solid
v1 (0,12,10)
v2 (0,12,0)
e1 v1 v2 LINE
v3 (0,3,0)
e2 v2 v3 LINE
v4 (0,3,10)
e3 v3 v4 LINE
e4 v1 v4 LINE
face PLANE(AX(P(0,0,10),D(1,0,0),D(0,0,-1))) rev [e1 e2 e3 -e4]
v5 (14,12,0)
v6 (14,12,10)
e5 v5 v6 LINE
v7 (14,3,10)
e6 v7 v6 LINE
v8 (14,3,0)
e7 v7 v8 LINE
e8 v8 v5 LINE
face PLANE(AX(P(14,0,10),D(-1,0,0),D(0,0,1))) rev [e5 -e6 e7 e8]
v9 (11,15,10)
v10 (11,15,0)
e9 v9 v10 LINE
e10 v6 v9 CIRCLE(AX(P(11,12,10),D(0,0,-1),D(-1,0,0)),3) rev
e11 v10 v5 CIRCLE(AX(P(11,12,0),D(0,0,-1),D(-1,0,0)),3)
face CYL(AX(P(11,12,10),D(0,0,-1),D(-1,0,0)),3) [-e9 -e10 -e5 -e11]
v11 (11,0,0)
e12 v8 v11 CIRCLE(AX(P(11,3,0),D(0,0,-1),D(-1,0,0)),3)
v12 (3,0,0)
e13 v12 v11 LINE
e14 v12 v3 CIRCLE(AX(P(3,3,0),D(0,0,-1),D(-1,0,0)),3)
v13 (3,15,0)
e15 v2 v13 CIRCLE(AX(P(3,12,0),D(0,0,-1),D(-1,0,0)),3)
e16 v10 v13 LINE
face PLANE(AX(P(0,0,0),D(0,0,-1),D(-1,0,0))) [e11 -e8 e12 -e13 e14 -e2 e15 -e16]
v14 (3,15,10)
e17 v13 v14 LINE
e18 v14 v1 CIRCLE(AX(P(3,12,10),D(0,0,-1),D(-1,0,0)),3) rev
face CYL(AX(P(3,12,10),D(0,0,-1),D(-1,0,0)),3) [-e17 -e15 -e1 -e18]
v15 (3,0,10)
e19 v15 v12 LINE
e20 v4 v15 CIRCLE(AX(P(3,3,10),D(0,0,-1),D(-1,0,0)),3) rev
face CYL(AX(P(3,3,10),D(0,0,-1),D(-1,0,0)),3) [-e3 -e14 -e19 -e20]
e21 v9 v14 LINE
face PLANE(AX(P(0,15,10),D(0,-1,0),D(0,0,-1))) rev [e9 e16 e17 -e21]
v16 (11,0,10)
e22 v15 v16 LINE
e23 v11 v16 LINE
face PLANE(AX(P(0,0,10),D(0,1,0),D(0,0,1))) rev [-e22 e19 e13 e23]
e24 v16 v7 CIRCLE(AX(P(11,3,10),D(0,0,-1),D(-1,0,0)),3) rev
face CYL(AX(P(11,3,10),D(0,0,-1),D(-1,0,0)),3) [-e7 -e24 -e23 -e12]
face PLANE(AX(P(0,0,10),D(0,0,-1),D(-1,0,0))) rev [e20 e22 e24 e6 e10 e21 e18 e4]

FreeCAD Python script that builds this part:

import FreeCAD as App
import Part
import Sketcher
from FreeCAD import Vector
Q = App.Units.Quantity


def edges_at(feature, points):
    """Names of the edges that pass closest to the given points."""
    edges = feature.Shape.Edges
    near = lambda p: min(range(len(edges)), key=lambda i: edges[i].distToShape(Part.Vertex(*p))[0])
    return sorted({f"Edge{near(p) + 1}" for p in points})

doc = App.newDocument("Part")
body = doc.addObject("PartDesign::Body", "Body")

sketch1 = body.newObject("Sketcher::SketchObject", "Sketch")
sketch1.AttachmentSupport = (doc.getObject("XY_Plane"), [""])
sketch1.MapMode = "FlatFace"
sketch1.addGeometry(Part.LineSegment(Vector(0, 15, 0), Vector(0, 0, 0)), False)
sketch1.addGeometry(Part.LineSegment(Vector(0, 0, 0), Vector(14, 0, 0)), False)
sketch1.addGeometry(Part.LineSegment(Vector(14, 0, 0), Vector(14, 15, 0)), False)
sketch1.addGeometry(Part.LineSegment(Vector(14, 15, 0), Vector(0, 15, 0)), False)
sketch1.addConstraint(Sketcher.Constraint("Coincident", 0, 2, 1, 1))
sketch1.addConstraint(Sketcher.Constraint("Coincident", 1, 2, 2, 1))
sketch1.addConstraint(Sketcher.Constraint("Coincident", 2, 2, 3, 1))
sketch1.addConstraint(Sketcher.Constraint("Coincident", 3, 2, 0, 1))
sketch1.addConstraint(Sketcher.Constraint("Vertical", 0))
sketch1.addConstraint(Sketcher.Constraint("Horizontal", 1))
sketch1.addConstraint(Sketcher.Constraint("Vertical", 2))
sketch1.addConstraint(Sketcher.Constraint("Horizontal", 3))
sketch1.addConstraint(Sketcher.Constraint("Coincident", 0, 2, -1, 1))
sketch1.addConstraint(Sketcher.Constraint("DistanceX", 1, 1, 1, 2, Q("14 mm")))
sketch1.addConstraint(Sketcher.Constraint("DistanceY", 0, 2, 0, 1, Q("15 mm")))
pad1 = body.newObject("PartDesign::Pad", "Pad")
pad1.Profile = sketch1
pad1.Length = 10
doc.recompute()

fillet = body.newObject("PartDesign::Fillet", "Fillet")
fillet.Base = (pad1, edges_at(pad1, [
    (0, 15, 5),
    (14, 15, 5),
    (14, 0, 5),
    (0, 0, 5),
]))
fillet.Radius = 3

doc.recompute()
